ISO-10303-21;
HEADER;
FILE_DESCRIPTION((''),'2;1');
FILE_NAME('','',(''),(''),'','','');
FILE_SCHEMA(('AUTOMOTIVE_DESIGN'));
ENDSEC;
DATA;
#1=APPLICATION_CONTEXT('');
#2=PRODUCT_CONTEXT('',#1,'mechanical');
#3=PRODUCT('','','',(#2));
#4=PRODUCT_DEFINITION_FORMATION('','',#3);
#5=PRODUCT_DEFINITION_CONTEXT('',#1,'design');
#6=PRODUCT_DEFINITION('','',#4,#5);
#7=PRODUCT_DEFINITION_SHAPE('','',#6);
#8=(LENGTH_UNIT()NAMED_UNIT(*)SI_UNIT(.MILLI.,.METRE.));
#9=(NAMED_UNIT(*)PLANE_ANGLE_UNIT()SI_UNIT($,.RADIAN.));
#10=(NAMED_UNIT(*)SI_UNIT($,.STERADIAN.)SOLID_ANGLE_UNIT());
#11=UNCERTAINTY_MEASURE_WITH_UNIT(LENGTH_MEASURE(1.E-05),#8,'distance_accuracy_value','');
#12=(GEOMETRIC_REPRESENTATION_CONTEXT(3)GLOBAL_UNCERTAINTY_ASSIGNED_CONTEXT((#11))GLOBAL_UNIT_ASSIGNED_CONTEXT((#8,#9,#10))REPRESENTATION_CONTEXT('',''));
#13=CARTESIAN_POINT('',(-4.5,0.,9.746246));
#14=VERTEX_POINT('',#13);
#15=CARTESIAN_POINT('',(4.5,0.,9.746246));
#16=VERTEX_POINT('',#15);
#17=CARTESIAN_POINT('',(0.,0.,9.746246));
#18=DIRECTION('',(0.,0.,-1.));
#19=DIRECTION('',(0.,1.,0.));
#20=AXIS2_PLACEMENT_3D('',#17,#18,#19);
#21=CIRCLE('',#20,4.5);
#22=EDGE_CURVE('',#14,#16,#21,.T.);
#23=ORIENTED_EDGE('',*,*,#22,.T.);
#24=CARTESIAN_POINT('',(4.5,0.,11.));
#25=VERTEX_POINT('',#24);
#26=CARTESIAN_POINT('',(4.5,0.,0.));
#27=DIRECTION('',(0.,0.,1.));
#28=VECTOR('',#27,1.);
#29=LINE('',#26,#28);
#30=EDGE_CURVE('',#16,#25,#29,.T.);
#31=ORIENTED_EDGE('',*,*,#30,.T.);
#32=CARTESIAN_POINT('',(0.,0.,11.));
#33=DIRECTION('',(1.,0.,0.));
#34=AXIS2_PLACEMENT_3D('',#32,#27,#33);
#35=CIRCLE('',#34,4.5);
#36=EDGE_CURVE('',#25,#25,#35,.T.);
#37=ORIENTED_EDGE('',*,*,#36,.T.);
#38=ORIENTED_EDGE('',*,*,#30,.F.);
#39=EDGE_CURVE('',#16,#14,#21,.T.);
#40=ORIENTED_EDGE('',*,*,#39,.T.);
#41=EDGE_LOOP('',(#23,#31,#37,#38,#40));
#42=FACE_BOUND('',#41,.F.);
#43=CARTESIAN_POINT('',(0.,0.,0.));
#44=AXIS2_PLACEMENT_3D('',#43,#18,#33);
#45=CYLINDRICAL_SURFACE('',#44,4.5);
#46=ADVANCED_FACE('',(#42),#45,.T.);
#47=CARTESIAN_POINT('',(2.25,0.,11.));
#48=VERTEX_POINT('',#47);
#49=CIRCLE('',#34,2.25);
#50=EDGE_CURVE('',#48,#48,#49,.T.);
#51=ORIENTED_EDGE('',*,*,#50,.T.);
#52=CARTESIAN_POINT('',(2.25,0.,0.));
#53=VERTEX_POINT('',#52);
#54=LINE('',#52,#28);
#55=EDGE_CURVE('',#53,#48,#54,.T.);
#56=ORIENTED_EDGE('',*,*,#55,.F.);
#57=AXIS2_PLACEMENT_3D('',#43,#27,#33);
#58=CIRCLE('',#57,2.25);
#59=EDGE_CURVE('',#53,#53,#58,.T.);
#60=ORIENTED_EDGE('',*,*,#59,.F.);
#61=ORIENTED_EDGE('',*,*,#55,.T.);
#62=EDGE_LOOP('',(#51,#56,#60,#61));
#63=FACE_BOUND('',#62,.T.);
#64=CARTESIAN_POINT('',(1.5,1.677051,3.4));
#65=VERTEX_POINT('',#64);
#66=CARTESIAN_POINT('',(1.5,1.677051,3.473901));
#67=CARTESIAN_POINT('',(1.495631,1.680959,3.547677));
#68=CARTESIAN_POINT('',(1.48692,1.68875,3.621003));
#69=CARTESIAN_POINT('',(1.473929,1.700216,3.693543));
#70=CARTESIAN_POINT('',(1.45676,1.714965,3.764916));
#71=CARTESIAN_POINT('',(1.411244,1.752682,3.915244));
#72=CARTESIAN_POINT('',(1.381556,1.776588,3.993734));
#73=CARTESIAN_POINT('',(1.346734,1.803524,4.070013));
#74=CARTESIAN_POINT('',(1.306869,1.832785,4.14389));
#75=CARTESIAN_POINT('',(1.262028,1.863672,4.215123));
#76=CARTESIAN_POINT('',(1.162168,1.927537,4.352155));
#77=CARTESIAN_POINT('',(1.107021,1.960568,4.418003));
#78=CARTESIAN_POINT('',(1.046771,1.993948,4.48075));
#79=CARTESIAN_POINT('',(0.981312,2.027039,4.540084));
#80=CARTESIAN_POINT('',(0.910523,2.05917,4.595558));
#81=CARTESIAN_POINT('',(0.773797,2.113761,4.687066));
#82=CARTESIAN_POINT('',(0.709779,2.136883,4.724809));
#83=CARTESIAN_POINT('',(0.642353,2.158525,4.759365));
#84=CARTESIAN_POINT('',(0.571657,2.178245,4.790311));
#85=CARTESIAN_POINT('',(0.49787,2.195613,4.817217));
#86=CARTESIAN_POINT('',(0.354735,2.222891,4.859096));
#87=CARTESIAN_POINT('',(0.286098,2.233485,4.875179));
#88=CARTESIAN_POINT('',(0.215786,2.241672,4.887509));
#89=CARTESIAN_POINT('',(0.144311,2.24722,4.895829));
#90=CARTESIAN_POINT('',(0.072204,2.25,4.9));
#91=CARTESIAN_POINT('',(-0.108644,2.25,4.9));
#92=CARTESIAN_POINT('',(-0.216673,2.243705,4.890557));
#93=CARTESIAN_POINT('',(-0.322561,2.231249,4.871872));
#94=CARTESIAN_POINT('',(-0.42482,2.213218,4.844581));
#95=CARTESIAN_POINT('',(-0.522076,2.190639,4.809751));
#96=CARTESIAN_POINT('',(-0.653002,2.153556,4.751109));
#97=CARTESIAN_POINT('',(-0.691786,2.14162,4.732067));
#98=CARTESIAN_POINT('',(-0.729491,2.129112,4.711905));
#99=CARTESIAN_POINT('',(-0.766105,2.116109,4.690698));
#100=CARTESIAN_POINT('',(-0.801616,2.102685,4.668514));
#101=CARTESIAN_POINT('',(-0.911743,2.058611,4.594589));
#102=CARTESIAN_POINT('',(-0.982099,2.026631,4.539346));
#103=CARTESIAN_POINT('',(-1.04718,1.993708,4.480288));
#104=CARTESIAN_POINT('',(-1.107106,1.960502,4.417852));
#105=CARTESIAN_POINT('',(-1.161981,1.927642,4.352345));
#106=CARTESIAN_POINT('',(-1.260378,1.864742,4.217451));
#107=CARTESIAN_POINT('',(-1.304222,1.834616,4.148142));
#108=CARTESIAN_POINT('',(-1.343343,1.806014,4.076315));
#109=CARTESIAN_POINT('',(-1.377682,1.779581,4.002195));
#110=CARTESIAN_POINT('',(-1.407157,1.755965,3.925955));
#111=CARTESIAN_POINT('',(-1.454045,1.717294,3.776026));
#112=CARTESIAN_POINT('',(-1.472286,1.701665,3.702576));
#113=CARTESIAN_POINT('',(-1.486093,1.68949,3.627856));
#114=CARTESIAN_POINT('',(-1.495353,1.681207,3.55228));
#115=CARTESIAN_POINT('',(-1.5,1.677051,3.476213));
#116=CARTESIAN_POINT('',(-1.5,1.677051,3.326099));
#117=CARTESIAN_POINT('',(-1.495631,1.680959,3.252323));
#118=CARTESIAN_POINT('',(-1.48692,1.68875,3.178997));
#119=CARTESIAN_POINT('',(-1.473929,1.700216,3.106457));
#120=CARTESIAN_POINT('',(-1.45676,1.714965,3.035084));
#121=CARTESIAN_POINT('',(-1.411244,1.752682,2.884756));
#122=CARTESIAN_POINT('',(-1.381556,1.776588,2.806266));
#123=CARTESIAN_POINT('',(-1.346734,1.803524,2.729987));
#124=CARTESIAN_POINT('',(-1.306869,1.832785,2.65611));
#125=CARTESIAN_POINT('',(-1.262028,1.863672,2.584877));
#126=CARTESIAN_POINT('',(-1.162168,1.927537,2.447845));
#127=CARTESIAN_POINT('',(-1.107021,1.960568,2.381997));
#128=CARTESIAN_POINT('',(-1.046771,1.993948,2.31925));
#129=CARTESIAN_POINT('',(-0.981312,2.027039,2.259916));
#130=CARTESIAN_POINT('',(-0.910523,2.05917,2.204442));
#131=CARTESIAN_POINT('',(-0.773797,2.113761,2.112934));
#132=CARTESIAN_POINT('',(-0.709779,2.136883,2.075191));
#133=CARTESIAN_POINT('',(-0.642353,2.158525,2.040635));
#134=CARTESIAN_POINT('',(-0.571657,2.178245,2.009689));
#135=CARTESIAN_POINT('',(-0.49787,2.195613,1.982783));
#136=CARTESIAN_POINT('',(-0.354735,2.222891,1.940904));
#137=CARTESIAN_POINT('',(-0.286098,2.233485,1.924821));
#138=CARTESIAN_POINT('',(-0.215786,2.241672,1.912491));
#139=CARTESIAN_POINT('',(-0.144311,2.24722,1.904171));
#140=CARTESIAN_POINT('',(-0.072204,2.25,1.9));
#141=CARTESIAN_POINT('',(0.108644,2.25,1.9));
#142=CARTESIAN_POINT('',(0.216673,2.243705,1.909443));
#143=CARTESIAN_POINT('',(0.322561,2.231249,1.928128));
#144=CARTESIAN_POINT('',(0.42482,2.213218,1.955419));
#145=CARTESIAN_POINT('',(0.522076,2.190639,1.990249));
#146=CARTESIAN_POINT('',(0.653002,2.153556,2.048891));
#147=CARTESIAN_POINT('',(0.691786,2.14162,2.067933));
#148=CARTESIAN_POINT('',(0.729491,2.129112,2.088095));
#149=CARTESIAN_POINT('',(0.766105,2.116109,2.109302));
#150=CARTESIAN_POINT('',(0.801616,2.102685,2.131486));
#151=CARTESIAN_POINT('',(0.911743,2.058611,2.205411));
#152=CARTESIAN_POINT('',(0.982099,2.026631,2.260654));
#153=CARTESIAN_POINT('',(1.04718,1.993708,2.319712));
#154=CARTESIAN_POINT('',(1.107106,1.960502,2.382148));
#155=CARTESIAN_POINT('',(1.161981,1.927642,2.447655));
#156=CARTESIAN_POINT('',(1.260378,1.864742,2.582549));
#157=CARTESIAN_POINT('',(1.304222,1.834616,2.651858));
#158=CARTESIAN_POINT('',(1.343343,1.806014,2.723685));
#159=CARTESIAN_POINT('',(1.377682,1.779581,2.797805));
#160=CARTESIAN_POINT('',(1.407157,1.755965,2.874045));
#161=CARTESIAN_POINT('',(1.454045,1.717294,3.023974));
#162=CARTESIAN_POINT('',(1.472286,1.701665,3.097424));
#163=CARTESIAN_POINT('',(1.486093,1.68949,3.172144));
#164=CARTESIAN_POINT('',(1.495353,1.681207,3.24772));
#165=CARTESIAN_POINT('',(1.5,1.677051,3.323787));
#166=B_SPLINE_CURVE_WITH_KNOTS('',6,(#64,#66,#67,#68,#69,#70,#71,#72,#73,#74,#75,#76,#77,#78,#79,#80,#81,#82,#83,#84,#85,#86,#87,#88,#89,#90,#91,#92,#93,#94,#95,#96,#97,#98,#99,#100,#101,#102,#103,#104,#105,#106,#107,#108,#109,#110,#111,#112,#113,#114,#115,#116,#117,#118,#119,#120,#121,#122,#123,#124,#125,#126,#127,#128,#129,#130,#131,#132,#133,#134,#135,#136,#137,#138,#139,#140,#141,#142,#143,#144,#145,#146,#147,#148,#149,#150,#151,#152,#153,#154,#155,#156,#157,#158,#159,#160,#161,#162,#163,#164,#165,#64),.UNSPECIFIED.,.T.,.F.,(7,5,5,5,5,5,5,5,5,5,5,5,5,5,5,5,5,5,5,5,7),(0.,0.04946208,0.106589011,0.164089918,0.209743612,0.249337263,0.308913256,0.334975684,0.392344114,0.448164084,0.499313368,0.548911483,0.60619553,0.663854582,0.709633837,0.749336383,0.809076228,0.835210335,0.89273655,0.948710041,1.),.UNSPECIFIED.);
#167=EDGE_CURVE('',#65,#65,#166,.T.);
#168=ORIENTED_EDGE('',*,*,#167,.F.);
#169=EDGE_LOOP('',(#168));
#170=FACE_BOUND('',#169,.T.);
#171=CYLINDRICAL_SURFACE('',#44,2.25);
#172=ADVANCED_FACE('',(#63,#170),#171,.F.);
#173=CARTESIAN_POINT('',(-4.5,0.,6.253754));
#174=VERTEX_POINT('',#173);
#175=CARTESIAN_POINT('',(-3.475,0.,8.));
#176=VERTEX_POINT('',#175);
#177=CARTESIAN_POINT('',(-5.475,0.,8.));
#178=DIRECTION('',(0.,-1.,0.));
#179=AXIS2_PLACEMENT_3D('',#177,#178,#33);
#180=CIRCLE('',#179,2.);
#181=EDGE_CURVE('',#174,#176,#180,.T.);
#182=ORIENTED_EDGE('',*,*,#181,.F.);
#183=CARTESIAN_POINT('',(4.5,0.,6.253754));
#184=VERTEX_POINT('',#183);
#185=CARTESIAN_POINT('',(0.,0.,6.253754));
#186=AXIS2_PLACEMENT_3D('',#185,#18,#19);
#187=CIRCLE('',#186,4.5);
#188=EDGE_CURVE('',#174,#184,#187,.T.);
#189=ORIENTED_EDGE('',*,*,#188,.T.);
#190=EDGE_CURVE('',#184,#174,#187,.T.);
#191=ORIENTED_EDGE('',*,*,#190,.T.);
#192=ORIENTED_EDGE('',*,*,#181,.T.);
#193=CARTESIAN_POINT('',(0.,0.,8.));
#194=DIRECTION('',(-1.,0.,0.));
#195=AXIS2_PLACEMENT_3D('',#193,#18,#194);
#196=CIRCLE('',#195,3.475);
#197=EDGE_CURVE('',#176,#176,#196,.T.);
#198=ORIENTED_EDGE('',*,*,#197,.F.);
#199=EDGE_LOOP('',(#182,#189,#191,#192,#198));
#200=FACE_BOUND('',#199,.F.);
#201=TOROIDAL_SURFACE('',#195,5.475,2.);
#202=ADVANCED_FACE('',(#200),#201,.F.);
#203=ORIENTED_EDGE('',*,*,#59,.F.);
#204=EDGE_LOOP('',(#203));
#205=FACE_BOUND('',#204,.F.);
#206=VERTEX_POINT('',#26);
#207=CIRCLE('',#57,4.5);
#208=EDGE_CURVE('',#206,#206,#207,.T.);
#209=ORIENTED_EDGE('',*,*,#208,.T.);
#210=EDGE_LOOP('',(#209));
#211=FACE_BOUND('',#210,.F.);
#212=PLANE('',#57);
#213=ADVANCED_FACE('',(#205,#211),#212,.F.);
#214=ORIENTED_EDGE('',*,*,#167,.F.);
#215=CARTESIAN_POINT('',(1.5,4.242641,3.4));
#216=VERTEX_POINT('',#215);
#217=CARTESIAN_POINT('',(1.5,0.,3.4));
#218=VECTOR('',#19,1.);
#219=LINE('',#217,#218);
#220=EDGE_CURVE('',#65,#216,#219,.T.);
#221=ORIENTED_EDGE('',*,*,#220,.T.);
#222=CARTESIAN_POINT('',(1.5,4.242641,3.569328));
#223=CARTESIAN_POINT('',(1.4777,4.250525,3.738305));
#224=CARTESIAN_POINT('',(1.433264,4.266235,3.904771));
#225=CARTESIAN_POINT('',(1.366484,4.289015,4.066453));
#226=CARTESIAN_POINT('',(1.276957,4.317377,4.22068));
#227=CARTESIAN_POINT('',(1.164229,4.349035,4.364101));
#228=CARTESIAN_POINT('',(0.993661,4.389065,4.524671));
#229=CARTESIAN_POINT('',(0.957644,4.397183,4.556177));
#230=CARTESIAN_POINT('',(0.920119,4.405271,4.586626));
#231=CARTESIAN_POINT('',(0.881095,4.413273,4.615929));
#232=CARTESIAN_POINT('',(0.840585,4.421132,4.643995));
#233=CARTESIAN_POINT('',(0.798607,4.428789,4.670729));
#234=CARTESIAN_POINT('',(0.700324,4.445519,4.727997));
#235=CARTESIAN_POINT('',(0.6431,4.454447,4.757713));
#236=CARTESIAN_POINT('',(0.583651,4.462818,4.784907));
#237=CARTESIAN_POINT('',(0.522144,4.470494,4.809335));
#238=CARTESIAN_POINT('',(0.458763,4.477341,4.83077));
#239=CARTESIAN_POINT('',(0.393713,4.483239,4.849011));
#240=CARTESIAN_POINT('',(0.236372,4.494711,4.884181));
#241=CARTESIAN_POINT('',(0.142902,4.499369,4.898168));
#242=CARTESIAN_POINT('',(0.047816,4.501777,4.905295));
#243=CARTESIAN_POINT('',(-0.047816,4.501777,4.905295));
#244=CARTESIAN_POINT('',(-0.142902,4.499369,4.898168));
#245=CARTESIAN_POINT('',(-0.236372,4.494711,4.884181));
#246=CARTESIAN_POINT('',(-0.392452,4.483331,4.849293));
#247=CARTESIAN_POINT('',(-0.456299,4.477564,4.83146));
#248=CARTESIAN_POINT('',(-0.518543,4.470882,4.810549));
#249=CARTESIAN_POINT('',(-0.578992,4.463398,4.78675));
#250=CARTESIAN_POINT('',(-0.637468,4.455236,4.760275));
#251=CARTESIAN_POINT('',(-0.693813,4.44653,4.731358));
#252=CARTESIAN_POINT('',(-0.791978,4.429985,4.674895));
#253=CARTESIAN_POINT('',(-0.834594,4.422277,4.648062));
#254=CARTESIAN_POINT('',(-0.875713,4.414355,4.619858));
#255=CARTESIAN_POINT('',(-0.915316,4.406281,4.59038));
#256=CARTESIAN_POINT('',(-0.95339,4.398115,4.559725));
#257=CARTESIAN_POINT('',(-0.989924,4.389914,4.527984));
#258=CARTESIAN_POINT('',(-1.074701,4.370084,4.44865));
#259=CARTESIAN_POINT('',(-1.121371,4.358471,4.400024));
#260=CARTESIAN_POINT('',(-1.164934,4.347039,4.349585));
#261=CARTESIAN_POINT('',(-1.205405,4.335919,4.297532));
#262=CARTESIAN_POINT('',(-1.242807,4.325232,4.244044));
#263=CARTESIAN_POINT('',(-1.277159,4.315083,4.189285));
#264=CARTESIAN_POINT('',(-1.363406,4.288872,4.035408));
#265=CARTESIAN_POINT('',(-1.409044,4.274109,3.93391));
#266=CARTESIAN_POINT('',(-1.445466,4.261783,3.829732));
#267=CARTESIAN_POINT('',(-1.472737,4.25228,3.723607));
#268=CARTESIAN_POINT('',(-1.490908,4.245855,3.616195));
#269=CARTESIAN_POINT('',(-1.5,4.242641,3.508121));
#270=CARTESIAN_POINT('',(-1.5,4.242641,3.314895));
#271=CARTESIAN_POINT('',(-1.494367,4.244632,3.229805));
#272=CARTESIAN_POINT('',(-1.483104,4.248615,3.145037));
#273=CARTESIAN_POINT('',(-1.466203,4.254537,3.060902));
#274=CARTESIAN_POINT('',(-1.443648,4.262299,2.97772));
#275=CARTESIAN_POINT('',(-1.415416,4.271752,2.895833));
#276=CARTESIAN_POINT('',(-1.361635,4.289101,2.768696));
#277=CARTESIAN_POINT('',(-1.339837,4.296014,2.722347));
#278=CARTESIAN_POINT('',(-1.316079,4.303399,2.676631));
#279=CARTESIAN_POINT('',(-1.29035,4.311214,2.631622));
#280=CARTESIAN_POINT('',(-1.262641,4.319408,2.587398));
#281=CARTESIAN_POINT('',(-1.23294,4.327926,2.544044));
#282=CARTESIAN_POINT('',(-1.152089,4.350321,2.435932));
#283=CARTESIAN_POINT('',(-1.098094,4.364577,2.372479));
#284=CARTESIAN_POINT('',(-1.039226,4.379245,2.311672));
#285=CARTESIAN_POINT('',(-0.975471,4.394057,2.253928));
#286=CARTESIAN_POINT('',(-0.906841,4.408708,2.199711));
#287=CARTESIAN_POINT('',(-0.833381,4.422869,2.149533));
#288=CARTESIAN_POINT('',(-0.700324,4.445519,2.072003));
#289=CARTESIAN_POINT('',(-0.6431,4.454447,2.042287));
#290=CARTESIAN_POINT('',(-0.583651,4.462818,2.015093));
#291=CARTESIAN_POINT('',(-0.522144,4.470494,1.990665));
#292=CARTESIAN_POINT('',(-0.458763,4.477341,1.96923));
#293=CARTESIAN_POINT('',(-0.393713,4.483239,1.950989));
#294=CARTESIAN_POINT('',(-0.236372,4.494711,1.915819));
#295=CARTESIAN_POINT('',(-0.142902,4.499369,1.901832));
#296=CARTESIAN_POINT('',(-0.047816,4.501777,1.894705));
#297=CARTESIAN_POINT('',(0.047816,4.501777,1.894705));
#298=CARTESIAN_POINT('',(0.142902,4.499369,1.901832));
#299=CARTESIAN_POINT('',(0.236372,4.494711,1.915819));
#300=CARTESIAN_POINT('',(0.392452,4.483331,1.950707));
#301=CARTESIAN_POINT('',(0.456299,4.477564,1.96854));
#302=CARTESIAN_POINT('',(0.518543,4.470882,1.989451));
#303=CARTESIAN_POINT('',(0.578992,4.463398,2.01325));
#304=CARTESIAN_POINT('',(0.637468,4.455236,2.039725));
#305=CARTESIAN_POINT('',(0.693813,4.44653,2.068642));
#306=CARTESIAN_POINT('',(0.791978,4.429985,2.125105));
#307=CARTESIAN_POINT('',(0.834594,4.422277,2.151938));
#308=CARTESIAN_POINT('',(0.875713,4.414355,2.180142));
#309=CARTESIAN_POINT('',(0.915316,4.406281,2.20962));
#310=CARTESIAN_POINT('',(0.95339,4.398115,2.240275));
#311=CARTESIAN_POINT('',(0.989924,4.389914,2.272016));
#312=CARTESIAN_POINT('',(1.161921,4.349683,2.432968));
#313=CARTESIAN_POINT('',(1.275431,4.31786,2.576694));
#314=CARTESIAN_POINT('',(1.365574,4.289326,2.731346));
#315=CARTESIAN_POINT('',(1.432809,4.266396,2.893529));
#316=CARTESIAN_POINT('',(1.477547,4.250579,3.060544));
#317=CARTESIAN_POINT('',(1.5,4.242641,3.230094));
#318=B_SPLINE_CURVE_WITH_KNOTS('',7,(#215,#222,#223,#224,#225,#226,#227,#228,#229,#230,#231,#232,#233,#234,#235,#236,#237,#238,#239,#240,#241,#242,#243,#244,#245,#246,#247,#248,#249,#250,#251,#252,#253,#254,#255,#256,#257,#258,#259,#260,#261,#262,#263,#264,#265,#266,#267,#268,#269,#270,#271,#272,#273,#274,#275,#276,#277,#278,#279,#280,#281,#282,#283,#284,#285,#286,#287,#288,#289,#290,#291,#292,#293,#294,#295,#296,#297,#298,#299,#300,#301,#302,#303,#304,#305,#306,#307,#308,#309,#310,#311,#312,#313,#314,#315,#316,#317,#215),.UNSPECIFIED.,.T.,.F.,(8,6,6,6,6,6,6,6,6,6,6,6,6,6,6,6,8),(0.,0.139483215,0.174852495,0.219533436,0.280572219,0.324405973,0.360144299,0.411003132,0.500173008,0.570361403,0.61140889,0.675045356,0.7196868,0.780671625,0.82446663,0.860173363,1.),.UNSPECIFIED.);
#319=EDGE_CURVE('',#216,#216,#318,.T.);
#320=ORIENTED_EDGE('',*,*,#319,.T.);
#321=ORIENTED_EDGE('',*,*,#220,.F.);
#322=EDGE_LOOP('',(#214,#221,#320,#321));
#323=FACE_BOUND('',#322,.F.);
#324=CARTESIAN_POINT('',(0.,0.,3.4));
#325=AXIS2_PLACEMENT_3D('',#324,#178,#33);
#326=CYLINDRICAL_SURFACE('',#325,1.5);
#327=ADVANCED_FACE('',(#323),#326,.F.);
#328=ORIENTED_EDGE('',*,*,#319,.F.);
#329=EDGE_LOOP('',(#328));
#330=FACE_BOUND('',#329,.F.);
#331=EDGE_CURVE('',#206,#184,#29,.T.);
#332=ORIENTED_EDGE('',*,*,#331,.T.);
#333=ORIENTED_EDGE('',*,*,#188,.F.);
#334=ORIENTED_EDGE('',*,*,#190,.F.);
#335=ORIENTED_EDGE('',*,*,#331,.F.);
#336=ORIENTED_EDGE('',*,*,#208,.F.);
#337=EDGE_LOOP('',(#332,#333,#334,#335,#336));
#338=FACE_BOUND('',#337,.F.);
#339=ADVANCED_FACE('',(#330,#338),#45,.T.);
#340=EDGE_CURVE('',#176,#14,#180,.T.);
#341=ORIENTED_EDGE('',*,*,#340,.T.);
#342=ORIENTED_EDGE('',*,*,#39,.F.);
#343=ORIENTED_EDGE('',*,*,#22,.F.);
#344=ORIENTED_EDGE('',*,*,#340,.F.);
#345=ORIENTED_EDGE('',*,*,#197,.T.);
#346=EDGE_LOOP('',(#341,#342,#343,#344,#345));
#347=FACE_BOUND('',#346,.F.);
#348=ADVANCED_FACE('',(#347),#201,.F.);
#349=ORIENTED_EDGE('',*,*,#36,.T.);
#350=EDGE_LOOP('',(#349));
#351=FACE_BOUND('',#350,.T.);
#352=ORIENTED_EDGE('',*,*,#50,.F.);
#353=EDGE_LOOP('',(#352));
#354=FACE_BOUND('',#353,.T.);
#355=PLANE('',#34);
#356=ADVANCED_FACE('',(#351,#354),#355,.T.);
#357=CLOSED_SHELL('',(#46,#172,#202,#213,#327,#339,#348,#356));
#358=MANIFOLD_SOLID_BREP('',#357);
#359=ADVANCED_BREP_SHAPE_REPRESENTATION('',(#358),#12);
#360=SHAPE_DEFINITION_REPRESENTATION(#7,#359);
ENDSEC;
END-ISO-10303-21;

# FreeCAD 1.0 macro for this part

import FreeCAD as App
import Part
import Sketcher
from FreeCAD import Vector
Q = App.Units.Quantity

doc = App.newDocument("Part")
body = doc.addObject("PartDesign::Body", "Body")

# Sketch on XY plane
sketch1 = body.newObject("Sketcher::SketchObject", "Sketch")
sketch1.AttachmentSupport = (doc.getObject("XY_Plane"), [""])
sketch1.MapMode = "FlatFace"
sketch1.addGeometry(Part.Circle(Vector(0, 0, 0), Vector(0, 0, 1), 4.5), False)
sketch1.addGeometry(Part.Circle(Vector(0, 0, 0), Vector(0, 0, 1), 2.2), False)
sketch1.addConstraint(Sketcher.Constraint("Coincident", 0, 3, -1, 1))
sketch1.addConstraint(Sketcher.Constraint("Coincident", 1, 3, -1, 1))
sketch1.addConstraint(Sketcher.Constraint("Diameter", 0, Q("9 mm")))
sketch1.addConstraint(Sketcher.Constraint("Diameter", 1, Q("4.5 mm")))
pad1 = body.newObject("PartDesign::Pad", "Pad")
pad1.Profile = sketch1
pad1.Length = 11

# Sketch on XZ plane
sketch2 = body.newObject("Sketcher::SketchObject", "Sketch001")
sketch2.AttachmentSupport = (doc.getObject("XZ_Plane"), [""])
sketch2.MapMode = "FlatFace"
sketch2.addGeometry(Part.Circle(Vector(0, 3.4, 0), Vector(0, 0, 1), 1.5), False)
sketch2.addConstraint(Sketcher.Constraint("PointOnObject", 0, 3, -2))
sketch2.addConstraint(Sketcher.Constraint("Diameter", 0, Q("3 mm")))
sketch2.addConstraint(Sketcher.Constraint("DistanceY", -1, 1, 0, 3, Q("3.4 mm")))
pocket1 = body.newObject("PartDesign::Pocket", "Pocket")
pocket1.Profile = sketch2
pocket1.Type = "ThroughAll"

# Sketch on XZ plane
sketch3 = body.newObject("Sketcher::SketchObject", "Sketch002")
sketch3.AttachmentSupport = (doc.getObject("XZ_Plane"), [""])
sketch3.MapMode = "FlatFace"
sketch3.addGeometry(Part.Circle(Vector(-5.5, 8, 0), Vector(0, 0, 1), 2), False)
sketch3.addConstraint(Sketcher.Constraint("Diameter", 0, Q("4 mm")))
sketch3.addConstraint(Sketcher.Constraint("DistanceY", -1, 1, 0, 3, Q("8 mm")))
sketch3.addConstraint(Sketcher.Constraint("DistanceX", 0, 3, -1, 1, Q("5.475 mm")))
groove = body.newObject("PartDesign::Groove", "Groove")
groove.Profile = sketch3
groove.ReferenceAxis = (sketch3, ["V_Axis"])
groove.Angle = 360

doc.recompute()
